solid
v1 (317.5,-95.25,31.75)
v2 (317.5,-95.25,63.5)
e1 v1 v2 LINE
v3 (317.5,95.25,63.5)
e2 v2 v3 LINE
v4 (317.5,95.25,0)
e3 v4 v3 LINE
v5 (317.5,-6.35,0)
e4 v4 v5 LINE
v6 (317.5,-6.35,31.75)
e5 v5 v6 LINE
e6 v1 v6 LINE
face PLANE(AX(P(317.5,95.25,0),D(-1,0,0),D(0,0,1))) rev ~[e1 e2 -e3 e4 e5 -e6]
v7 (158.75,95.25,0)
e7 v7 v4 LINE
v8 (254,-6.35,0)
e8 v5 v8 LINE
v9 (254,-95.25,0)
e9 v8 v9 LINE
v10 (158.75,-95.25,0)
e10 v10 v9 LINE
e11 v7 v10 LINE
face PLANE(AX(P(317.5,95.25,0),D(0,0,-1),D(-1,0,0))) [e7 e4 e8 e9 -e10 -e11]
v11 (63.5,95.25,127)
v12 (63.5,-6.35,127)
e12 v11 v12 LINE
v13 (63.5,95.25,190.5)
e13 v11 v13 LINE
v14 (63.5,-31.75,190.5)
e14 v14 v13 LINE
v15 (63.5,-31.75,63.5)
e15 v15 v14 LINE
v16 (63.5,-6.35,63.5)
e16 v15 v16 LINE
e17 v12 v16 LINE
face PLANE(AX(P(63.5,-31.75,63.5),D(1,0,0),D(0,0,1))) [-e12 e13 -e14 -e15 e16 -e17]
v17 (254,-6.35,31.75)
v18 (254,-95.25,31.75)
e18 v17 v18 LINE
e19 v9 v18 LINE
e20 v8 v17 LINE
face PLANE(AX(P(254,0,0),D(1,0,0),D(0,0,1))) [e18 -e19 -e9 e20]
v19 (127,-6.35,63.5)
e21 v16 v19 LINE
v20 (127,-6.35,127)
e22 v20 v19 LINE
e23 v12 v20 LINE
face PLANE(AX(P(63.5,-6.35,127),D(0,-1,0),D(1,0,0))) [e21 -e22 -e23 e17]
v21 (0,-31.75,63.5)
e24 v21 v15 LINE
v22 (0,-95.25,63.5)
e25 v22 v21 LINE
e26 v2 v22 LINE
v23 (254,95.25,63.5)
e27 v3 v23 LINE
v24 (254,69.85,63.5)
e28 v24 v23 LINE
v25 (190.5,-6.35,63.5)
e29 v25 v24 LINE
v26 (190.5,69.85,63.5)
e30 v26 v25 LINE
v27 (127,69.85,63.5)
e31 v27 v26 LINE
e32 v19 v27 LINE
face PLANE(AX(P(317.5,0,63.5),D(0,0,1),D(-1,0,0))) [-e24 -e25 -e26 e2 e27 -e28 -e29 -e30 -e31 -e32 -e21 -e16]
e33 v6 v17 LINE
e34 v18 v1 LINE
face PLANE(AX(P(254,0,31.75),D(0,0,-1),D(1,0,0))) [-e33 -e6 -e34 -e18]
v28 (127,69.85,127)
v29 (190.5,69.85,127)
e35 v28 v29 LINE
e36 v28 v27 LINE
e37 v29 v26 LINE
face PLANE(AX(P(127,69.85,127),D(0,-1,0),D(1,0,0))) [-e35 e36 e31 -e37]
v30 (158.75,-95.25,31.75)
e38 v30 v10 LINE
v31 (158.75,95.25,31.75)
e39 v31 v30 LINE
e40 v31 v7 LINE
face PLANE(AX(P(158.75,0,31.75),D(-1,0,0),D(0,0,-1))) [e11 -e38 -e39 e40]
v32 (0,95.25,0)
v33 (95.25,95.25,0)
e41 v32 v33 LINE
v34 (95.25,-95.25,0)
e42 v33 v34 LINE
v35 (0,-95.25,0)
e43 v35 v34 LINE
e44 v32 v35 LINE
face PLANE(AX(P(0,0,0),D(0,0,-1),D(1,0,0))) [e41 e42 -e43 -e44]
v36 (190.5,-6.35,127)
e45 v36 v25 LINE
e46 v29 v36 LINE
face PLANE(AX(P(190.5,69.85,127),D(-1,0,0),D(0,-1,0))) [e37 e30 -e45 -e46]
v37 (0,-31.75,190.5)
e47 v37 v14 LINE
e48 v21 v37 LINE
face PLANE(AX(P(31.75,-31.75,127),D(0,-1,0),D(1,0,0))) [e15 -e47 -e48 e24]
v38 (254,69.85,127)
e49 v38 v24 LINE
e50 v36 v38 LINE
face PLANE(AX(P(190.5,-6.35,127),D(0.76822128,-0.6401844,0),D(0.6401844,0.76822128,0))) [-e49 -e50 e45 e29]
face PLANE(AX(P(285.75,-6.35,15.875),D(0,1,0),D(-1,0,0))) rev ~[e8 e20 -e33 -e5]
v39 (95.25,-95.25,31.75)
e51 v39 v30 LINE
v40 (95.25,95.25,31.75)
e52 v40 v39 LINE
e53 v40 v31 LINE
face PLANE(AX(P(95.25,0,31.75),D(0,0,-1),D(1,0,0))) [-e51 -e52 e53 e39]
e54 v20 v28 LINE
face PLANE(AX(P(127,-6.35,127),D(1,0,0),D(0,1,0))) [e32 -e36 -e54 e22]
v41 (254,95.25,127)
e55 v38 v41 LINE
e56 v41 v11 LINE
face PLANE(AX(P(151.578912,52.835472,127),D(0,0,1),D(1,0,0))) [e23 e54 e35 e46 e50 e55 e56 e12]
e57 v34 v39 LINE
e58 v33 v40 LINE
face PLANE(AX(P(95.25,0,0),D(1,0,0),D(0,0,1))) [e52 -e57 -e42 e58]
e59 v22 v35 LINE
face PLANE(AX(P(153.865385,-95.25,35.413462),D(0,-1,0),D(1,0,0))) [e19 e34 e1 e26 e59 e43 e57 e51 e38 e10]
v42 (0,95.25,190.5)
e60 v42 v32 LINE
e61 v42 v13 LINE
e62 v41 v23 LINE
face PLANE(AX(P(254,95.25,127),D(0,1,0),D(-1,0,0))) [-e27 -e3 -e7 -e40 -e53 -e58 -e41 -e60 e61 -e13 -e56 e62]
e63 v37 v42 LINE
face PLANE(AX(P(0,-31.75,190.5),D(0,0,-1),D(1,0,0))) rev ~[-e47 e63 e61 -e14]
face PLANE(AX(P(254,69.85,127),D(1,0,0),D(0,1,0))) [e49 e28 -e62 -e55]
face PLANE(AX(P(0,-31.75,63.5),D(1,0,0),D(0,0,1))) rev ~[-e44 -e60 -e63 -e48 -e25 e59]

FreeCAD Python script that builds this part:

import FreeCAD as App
import Part
import Sketcher

V = App.Vector
Q = App.Units.Quantity

doc = App.newDocument("Part")
body = doc.addObject("PartDesign::Body", "Body")

# Sketch on XZ plane
sketch1 = body.newObject("Sketcher::SketchObject", "Sketch")
sketch1.AttachmentSupport = (doc.getObject("XZ_Plane"), [""])
sketch1.MapMode = "FlatFace"
sketch1.addGeometry(Part.LineSegment(V(0, 63.5, 0), V(0, 0, 0)), False)
sketch1.addGeometry(Part.LineSegment(V(0, 0, 0), V(95.25, 0, 0)), False)
sketch1.addGeometry(Part.LineSegment(V(95.25, 0, 0), V(95.25, 31.75, 0)), False)
sketch1.addGeometry(Part.LineSegment(V(95.25, 31.75, 0), V(158.75, 31.75, 0)), False)
sketch1.addGeometry(Part.LineSegment(V(158.75, 31.75, 0), V(158.75, 0, 0)), False)
sketch1.addGeometry(Part.LineSegment(V(158.75, 0, 0), V(254, 0, 0)), False)
sketch1.addGeometry(Part.LineSegment(V(254, 0, 0), V(254, 31.75, 0)), False)
sketch1.addGeometry(Part.LineSegment(V(254, 31.75, 0), V(317.5, 31.75, 0)), False)
sketch1.addGeometry(Part.LineSegment(V(317.5, 31.75, 0), V(317.5, 63.5, 0)), False)
sketch1.addGeometry(Part.LineSegment(V(317.5, 63.5, 0), V(0, 63.5, 0)), False)
sketch1.addConstraint(Sketcher.Constraint("Coincident", 0, 2, 1, 1))
sketch1.addConstraint(Sketcher.Constraint("Coincident", 1, 2, 2, 1))
sketch1.addConstraint(Sketcher.Constraint("Coincident", 2, 2, 3, 1))
sketch1.addConstraint(Sketcher.Constraint("Coincident", 3, 2, 4, 1))
sketch1.addConstraint(Sketcher.Constraint("Coincident", 4, 2, 5, 1))
sketch1.addConstraint(Sketcher.Constraint("Coincident", 5, 2, 6, 1))
sketch1.addConstraint(Sketcher.Constraint("Coincident", 6, 2, 7, 1))
sketch1.addConstraint(Sketcher.Constraint("Coincident", 7, 2, 8, 1))
sketch1.addConstraint(Sketcher.Constraint("Coincident", 8, 2, 9, 1))
sketch1.addConstraint(Sketcher.Constraint("Coincident", 9, 2, 0, 1))
sketch1.addConstraint(Sketcher.Constraint("Vertical", 0))
sketch1.addConstraint(Sketcher.Constraint("Horizontal", 1))
sketch1.addConstraint(Sketcher.Constraint("Vertical", 2))
sketch1.addConstraint(Sketcher.Constraint("Horizontal", 3))
sketch1.addConstraint(Sketcher.Constraint("Vertical", 4))
sketch1.addConstraint(Sketcher.Constraint("Horizontal", 5))
sketch1.addConstraint(Sketcher.Constraint("Vertical", 6))
sketch1.addConstraint(Sketcher.Constraint("Horizontal", 7))
sketch1.addConstraint(Sketcher.Constraint("Vertical", 8))
sketch1.addConstraint(Sketcher.Constraint("Horizontal", 9))
sketch1.addConstraint(Sketcher.Constraint("Coincident", 0, 2, -1, 1))
sketch1.addConstraint(Sketcher.Constraint("PointOnObject", 4, 2, -1))
sketch1.addConstraint(Sketcher.Constraint("Horizontal", 3, 2, 6, 2))
sketch1.addConstraint(Sketcher.Constraint("Equal", 1, 5))
sketch1.addConstraint(Sketcher.Constraint("Equal", 3, 7))
sketch1.addConstraint(Sketcher.Constraint("Equal", 7, 0))
sketch1.addConstraint(Sketcher.Constraint("Equal", 6, 8))
sketch1.addConstraint(Sketcher.Constraint("DistanceX", 3, 1, 3, 2, Q("2.5 in")))
sketch1.addConstraint(Sketcher.Constraint("DistanceX", 9, 2, 9, 1, Q("12.5 in")))
pad1 = body.newObject("PartDesign::Pad", "Pad")
pad1.Profile = sketch1
pad1.Length = Q("7.5 in")
pad1.Midplane = True

# Sketch on XZ plane
sketch2 = body.newObject("Sketcher::SketchObject", "Sketch001")
sketch2.AttachmentSupport = (doc.getObject("XZ_Plane"), [""])
sketch2.MapMode = "FlatFace"
sketch2.AttachmentOffset = App.Placement(V(0, 0, -3.75 * 25.4), App.Rotation())
sketch2.addGeometry(Part.LineSegment(V(317.5, 31.75, 0), V(317.5, 0, 0)), False)
sketch2.addGeometry(Part.LineSegment(V(317.5, 0, 0), V(254, 0, 0)), False)
sketch2.addGeometry(Part.LineSegment(V(254, 0, 0), V(254, 31.75, 0)), False)
sketch2.addGeometry(Part.LineSegment(V(254, 31.75, 0), V(317.5, 31.75, 0)), False)
sketch2.addConstraint(Sketcher.Constraint("Coincident", 0, 2, 1, 1))
sketch2.addConstraint(Sketcher.Constraint("Coincident", 1, 2, 2, 1))
sketch2.addConstraint(Sketcher.Constraint("Coincident", 2, 2, 3, 1))
sketch2.addConstraint(Sketcher.Constraint("Coincident", 3, 2, 0, 1))
sketch2.addConstraint(Sketcher.Constraint("Vertical", 0))
sketch2.addConstraint(Sketcher.Constraint("Horizontal", 1))
sketch2.addConstraint(Sketcher.Constraint("Vertical", 2))
sketch2.addConstraint(Sketcher.Constraint("Horizontal", 3))
sketch2.addConstraint(Sketcher.Constraint("PointOnObject", 0, 2, -1))
sketch2.addConstraint(Sketcher.Constraint("DistanceX", 1, 2, 1, 1, Q("2.5 in")))
sketch2.addConstraint(Sketcher.Constraint("DistanceX", -1, 1, 1, 2, Q("10 in")))
sketch2.addConstraint(Sketcher.Constraint("DistanceY", 0, 2, 0, 1, Q("1.25 in")))
pad2 = body.newObject("PartDesign::Pad", "Pad001")
pad2.Profile = sketch2
pad2.Length = Q("4 in")

# Sketch on XZ plane
sketch3 = body.newObject("Sketcher::SketchObject", "Sketch002")
sketch3.AttachmentSupport = (doc.getObject("XZ_Plane"), [""])
sketch3.MapMode = "FlatFace"
sketch3.AttachmentOffset = App.Placement(V(0, 0, 1.25 * 25.4), App.Rotation())
sketch3.addGeometry(Part.LineSegment(V(0, 190.5, 0), V(0, 63.5, 0)), False)
sketch3.addGeometry(Part.LineSegment(V(0, 63.5, 0), V(63.5, 63.5, 0)), False)
sketch3.addGeometry(Part.LineSegment(V(63.5, 63.5, 0), V(63.5, 190.5, 0)), False)
sketch3.addGeometry(Part.LineSegment(V(63.5, 190.5, 0), V(0, 190.5, 0)), False)
sketch3.addConstraint(Sketcher.Constraint("Coincident", 0, 2, 1, 1))
sketch3.addConstraint(Sketcher.Constraint("Coincident", 1, 2, 2, 1))
sketch3.addConstraint(Sketcher.Constraint("Coincident", 2, 2, 3, 1))
sketch3.addConstraint(Sketcher.Constraint("Coincident", 3, 2, 0, 1))
sketch3.addConstraint(Sketcher.Constraint("Vertical", 0))
sketch3.addConstraint(Sketcher.Constraint("Horizontal", 1))
sketch3.addConstraint(Sketcher.Constraint("Vertical", 2))
sketch3.addConstraint(Sketcher.Constraint("Horizontal", 3))
sketch3.addConstraint(Sketcher.Constraint("PointOnObject", 0, 2, -2))
sketch3.addConstraint(Sketcher.Constraint("DistanceY", 0, 2, 0, 1, Q("5 in")))
sketch3.addConstraint(Sketcher.Constraint("DistanceX", 1, 1, 1, 2, Q("2.5 in")))
sketch3.addConstraint(Sketcher.Constraint("DistanceY", -1, 1, 0, 2, Q("2.5 in")))
pad3 = body.newObject("PartDesign::Pad", "Pad002")
pad3.Profile = sketch3
pad3.Length = Q("5 in")
pad3.Reversed = True

# Sketch on XY plane
sketch4 = body.newObject("Sketcher::SketchObject", "Sketch003")
sketch4.AttachmentSupport = (doc.getObject("XY_Plane"), [""])
sketch4.MapMode = "FlatFace"
sketch4.AttachmentOffset = App.Placement(V(0, 0, 5 * 25.4), App.Rotation())
sketch4.addGeometry(Part.LineSegment(V(254, 95.25, 0), V(63.5, 95.25, 0)), False)
sketch4.addGeometry(Part.LineSegment(V(63.5, 95.25, 0), V(63.5, -6.35, 0)), False)
sketch4.addGeometry(Part.LineSegment(V(63.5, -6.35, 0), V(127, -6.35, 0)), False)
sketch4.addGeometry(Part.LineSegment(V(127, -6.35, 0), V(127, 69.85, 0)), False)
sketch4.addGeometry(Part.LineSegment(V(127, 69.85, 0), V(190.5, 69.85, 0)), False)
sketch4.addGeometry(Part.LineSegment(V(190.5, 69.85, 0), V(190.5, -6.35, 0)), False)
sketch4.addGeometry(Part.LineSegment(V(190.5, -6.35, 0), V(254, 69.85, 0)), False)
sketch4.addGeometry(Part.LineSegment(V(254, 69.85, 0), V(254, 95.25, 0)), False)
sketch4.addConstraint(Sketcher.Constraint("Coincident", 0, 2, 1, 1))
sketch4.addConstraint(Sketcher.Constraint("Coincident", 1, 2, 2, 1))
sketch4.addConstraint(Sketcher.Constraint("Coincident", 2, 2, 3, 1))
sketch4.addConstraint(Sketcher.Constraint("Coincident", 3, 2, 4, 1))
sketch4.addConstraint(Sketcher.Constraint("Coincident", 4, 2, 5, 1))
sketch4.addConstraint(Sketcher.Constraint("Coincident", 5, 2, 6, 1))
sketch4.addConstraint(Sketcher.Constraint("Coincident", 6, 2, 7, 1))
sketch4.addConstraint(Sketcher.Constraint("Coincident", 7, 2, 0, 1))
sketch4.addConstraint(Sketcher.Constraint("Horizontal", 0))
sketch4.addConstraint(Sketcher.Constraint("Vertical", 1))
sketch4.addConstraint(Sketcher.Constraint("Horizontal", 2))
sketch4.addConstraint(Sketcher.Constraint("Vertical", 3))
sketch4.addConstraint(Sketcher.Constraint("Horizontal", 4))
sketch4.addConstraint(Sketcher.Constraint("Vertical", 5))
sketch4.addConstraint(Sketcher.Constraint("Vertical", 7))
sketch4.addConstraint(Sketcher.Constraint("Horizontal", 2, 2, 5, 2))
sketch4.addConstraint(Sketcher.Constraint("Horizontal", 4, 2, 6, 2))
sketch4.addConstraint(Sketcher.Constraint("Equal", 2, 4))
sketch4.addConstraint(Sketcher.Constraint("DistanceY", 1, 2, 1, 1, Q("4 in")))
sketch4.addConstraint(Sketcher.Constraint("DistanceY", 3, 1, 3, 2, Q("3 in")))
sketch4.addConstraint(Sketcher.Constraint("DistanceX", 0, 2, 0, 1, Q("7.5 in")))
sketch4.addConstraint(Sketcher.Constraint("DistanceX", 2, 1, 2, 2, Q("2.5 in")))
sketch4.addConstraint(Sketcher.Constraint("DistanceX", -1, 1, 2, 2, Q("5 in")))
sketch4.addConstraint(Sketcher.Constraint("DistanceY", -1, 1, 0, 2, Q("3.75 in")))
pad4 = body.newObject("PartDesign::Pad", "Pad003")
pad4.Profile = sketch4
pad4.Length = Q("3 in")
pad4.Reversed = True

doc.recompute()
